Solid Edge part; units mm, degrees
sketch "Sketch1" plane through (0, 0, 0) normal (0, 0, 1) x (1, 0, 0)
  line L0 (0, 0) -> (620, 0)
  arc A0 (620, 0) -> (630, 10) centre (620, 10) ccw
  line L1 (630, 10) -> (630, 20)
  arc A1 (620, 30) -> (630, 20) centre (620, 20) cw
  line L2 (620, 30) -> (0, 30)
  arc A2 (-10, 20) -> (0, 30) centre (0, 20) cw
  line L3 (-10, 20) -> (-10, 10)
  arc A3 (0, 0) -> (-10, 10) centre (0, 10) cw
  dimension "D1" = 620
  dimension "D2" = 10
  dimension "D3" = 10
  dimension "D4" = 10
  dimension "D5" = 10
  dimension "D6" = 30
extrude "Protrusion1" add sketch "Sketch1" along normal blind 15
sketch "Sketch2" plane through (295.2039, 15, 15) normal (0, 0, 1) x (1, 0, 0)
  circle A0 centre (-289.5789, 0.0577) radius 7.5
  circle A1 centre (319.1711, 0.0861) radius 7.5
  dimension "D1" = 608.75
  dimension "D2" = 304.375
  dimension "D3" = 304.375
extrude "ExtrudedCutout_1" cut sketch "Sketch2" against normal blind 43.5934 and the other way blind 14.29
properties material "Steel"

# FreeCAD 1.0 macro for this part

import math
import FreeCAD as App
import Part
import Sketcher
Q = App.Units.Quantity

doc = App.newDocument("Part")
body = doc.addObject("PartDesign::Body", "Body")

# Sketch on XY plane
sketch1 = body.newObject("Sketcher::SketchObject", "Sketch")
sketch1.AttachmentSupport = (doc.getObject("XY_Plane"), [""])
sketch1.MapMode = "FlatFace"
sketch1.addGeometry(Part.ArcOfCircle(Part.Circle(App.Vector(0, 10, 0), App.Vector(0, 0, 1), 10), math.radians(180), math.radians(270)), False)
sketch1.addGeometry(Part.LineSegment(App.Vector(0, 0, 0), App.Vector(620, 0, 0)), False)
sketch1.addGeometry(Part.ArcOfCircle(Part.Circle(App.Vector(620, 10, 0), App.Vector(0, 0, 1), 10), math.radians(-90), math.radians(0)), False)
sketch1.addGeometry(Part.LineSegment(App.Vector(630, 10, 0), App.Vector(630, 20, 0)), False)
sketch1.addGeometry(Part.ArcOfCircle(Part.Circle(App.Vector(620, 20, 0), App.Vector(0, 0, 1), 10), math.radians(0), math.radians(90)), False)
sketch1.addGeometry(Part.LineSegment(App.Vector(620, 30, 0), App.Vector(0, 30, 0)), False)
sketch1.addGeometry(Part.ArcOfCircle(Part.Circle(App.Vector(0, 20, 0), App.Vector(0, 0, 1), 10), math.radians(90), math.radians(180)), False)
sketch1.addGeometry(Part.LineSegment(App.Vector(-10, 20, 0), App.Vector(-10, 10, 0)), False)
sketch1.addConstraint(Sketcher.Constraint("Tangent", 0, 2, 1, 1))
sketch1.addConstraint(Sketcher.Constraint("Tangent", 1, 2, 2, 1))
sketch1.addConstraint(Sketcher.Constraint("Tangent", 2, 2, 3, 1))
sketch1.addConstraint(Sketcher.Constraint("Tangent", 3, 2, 4, 1))
sketch1.addConstraint(Sketcher.Constraint("Tangent", 4, 2, 5, 1))
sketch1.addConstraint(Sketcher.Constraint("Tangent", 5, 2, 6, 1))
sketch1.addConstraint(Sketcher.Constraint("Tangent", 6, 2, 7, 1))
sketch1.addConstraint(Sketcher.Constraint("Tangent", 7, 2, 0, 1))
sketch1.addConstraint(Sketcher.Constraint("Horizontal", 1))
sketch1.addConstraint(Sketcher.Constraint("Vertical", 3))
sketch1.addConstraint(Sketcher.Constraint("Horizontal", 5))
sketch1.addConstraint(Sketcher.Constraint("Vertical", 7))
sketch1.addConstraint(Sketcher.Constraint("Coincident", 0, 2, -1, 1))
sketch1.addConstraint(Sketcher.Constraint("Equal", 0, 2))
sketch1.addConstraint(Sketcher.Constraint("Equal", 2, 4))
sketch1.addConstraint(Sketcher.Constraint("Equal", 4, 6))
sketch1.addConstraint(Sketcher.Constraint("DistanceX", 1, 1, 1, 2, Q("620 mm")))
sketch1.addConstraint(Sketcher.Constraint("Radius", 0, Q("10 mm")))
sketch1.addConstraint(Sketcher.Constraint("DistanceY", 3, 1, 3, 2, Q("10 mm")))
pad1 = body.newObject("PartDesign::Pad", "Pad")
pad1.Profile = sketch1
pad1.Length = 15

# Sketch on XY plane
sketch2 = body.newObject("Sketcher::SketchObject", "Sketch001")
sketch2.AttachmentSupport = (doc.getObject("XY_Plane"), [""])
sketch2.MapMode = "FlatFace"
sketch2.AttachmentOffset = App.Placement(App.Vector(0, 0, 15), App.Rotation())
sketch2.addGeometry(Part.Circle(App.Vector(5.625, 15.0577, 0), App.Vector(0, 0, 1), 7.5), False)
sketch2.addGeometry(Part.Circle(App.Vector(614.375, 15.0861, 0), App.Vector(0, 0, 1), 7.5), False)
sketch2.addConstraint(Sketcher.Constraint("Equal", 0, 1))
sketch2.addConstraint(Sketcher.Constraint("Diameter", 0, Q("15 mm")))
sketch2.addConstraint(Sketcher.Constraint("DistanceX", 0, 3, 1, 3, Q("608.75 mm")))
sketch2.addConstraint(Sketcher.Constraint("DistanceX", -1, 1, 0, 3, Q("5.625 mm")))
sketch2.addConstraint(Sketcher.Constraint("DistanceY", -1, 1, 1, 3, Q("15.086 mm")))
sketch2.addConstraint(Sketcher.Constraint("DistanceY", -1, 1, 0, 3, Q("15.0577 mm")))
pocket1 = body.newObject("PartDesign::Pocket", "Pocket")
pocket1.Profile = sketch2
pocket1.Type = "ThroughAll"
pocket1.Midplane = True

doc.recompute()
